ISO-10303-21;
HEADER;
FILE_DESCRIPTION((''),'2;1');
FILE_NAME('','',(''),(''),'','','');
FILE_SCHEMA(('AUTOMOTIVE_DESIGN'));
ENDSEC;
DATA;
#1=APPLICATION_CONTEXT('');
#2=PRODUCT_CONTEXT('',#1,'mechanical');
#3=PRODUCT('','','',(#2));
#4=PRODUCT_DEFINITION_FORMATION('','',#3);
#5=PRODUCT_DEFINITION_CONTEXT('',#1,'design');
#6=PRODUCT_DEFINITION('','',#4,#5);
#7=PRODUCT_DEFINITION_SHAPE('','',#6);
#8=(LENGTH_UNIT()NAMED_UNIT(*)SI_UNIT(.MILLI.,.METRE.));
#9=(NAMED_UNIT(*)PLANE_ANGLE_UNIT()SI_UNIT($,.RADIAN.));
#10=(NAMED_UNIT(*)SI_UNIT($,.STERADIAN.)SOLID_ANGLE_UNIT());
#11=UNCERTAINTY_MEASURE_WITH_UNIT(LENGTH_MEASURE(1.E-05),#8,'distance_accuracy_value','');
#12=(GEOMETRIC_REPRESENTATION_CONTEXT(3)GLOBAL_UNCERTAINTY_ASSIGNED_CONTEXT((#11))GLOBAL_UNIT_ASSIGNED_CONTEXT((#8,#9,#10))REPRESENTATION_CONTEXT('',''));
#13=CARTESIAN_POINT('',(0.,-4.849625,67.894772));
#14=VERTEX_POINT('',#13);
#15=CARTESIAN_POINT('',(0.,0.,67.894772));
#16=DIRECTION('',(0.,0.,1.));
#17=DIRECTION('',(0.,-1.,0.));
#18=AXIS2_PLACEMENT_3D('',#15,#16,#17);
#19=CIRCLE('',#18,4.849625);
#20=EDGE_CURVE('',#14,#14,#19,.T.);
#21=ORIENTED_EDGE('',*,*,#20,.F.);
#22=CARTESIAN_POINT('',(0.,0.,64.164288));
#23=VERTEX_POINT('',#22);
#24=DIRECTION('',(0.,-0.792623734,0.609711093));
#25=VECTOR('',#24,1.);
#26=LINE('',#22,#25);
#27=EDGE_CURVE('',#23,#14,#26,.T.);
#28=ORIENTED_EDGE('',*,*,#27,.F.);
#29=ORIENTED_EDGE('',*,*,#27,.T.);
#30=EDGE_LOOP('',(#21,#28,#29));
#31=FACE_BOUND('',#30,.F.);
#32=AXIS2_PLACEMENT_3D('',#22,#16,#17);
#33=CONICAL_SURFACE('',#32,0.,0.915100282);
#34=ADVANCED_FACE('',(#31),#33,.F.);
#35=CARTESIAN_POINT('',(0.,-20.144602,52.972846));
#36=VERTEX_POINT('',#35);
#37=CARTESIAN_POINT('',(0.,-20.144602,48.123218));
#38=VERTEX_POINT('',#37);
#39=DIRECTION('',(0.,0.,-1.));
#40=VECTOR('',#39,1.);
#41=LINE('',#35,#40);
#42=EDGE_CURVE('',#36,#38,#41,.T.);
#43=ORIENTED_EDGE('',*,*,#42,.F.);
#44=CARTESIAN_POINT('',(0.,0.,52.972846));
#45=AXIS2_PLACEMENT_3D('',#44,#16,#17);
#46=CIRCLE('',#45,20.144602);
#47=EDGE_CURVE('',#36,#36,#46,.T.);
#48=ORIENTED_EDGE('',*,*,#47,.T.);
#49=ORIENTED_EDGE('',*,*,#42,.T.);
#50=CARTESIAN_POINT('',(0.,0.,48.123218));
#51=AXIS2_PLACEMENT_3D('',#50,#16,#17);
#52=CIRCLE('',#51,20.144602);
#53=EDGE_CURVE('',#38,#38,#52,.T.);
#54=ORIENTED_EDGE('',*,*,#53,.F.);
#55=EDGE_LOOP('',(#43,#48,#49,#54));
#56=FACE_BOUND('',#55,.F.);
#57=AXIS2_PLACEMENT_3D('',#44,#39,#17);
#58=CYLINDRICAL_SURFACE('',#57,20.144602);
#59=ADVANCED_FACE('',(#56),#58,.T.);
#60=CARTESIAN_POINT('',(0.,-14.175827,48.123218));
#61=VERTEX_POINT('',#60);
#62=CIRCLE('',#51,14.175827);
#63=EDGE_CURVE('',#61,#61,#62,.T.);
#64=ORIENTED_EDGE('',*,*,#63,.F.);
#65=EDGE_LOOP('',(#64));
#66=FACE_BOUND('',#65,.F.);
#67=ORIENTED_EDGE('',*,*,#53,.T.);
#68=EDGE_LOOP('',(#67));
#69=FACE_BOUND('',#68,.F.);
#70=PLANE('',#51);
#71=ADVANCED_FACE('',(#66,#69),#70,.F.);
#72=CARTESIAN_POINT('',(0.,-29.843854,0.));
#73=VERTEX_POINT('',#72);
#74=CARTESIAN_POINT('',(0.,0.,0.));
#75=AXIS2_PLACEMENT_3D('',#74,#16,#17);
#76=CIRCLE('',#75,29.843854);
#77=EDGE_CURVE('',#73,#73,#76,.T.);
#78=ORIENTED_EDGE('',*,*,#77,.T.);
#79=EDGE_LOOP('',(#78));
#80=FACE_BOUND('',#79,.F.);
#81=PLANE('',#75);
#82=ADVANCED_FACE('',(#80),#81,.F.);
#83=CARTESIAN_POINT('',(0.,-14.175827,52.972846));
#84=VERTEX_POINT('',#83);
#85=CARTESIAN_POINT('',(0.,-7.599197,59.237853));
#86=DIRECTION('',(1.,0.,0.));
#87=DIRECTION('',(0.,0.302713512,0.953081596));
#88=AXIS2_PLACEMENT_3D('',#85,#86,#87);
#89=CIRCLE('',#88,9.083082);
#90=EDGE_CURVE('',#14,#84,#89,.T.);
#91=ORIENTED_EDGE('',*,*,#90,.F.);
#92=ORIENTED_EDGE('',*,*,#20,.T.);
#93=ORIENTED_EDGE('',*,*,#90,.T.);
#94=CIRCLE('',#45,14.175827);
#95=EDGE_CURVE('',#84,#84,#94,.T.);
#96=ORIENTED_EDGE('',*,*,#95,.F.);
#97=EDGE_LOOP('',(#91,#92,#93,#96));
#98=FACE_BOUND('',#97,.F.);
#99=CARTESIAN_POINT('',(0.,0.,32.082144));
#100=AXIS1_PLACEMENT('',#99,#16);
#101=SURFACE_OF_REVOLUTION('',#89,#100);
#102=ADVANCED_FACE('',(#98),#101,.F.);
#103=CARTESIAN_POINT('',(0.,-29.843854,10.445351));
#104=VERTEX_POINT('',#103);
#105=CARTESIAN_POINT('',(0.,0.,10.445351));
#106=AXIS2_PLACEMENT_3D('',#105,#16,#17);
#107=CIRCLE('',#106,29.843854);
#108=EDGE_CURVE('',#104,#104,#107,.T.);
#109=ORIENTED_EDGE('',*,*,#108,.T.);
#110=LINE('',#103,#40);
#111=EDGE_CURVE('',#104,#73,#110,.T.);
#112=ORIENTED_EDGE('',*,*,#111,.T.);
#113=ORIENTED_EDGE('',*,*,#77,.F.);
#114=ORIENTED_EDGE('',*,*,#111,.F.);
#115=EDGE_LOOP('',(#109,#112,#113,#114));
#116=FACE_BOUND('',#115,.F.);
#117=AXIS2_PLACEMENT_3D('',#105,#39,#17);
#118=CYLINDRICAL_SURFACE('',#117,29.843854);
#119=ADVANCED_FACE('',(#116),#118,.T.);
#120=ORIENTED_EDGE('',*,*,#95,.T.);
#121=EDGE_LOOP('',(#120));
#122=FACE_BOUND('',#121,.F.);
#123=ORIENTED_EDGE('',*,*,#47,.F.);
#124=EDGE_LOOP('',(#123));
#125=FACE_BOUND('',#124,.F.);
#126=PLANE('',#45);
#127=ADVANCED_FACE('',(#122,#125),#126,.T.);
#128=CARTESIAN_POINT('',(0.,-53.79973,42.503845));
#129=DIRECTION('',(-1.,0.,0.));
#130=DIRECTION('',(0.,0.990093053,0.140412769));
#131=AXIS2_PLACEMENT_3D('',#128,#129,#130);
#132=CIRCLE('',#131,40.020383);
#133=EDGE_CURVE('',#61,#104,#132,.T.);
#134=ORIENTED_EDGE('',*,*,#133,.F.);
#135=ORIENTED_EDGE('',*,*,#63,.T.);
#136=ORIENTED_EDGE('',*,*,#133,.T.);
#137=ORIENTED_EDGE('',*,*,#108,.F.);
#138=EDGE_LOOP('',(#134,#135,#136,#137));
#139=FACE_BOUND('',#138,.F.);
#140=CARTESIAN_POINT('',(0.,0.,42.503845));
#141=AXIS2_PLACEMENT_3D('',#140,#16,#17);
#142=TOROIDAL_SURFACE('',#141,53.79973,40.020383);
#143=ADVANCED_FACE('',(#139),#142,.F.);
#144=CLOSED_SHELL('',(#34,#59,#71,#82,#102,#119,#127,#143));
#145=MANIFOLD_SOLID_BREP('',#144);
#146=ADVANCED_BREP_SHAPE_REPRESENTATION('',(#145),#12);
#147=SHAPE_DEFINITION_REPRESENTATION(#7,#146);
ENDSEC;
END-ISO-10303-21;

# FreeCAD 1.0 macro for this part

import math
import FreeCAD as App
import Part
import Sketcher

V = App.Vector
Q = App.Units.Quantity

doc = App.newDocument("Part")
body = doc.addObject("PartDesign::Body", "Body")

# Sketch on YZ plane
sketch1 = body.newObject("Sketcher::SketchObject", "Sketch")
sketch1.AttachmentSupport = (doc.getObject("YZ_Plane"), [""])
sketch1.MapMode = "FlatFace"
sketch1.addGeometry(Part.LineSegment(V(-29.8, 0, 0), V(0, 0, 0)), False)
sketch1.addGeometry(Part.LineSegment(V(0, 0, 0), V(0, 64.2, 0)), False)
sketch1.addGeometry(Part.LineSegment(V(0, 64.2, 0), V(-4.8, 67.9, 0)), False)
sketch1.addGeometry(Part.ArcOfCircle(Part.Circle(V(-7.6, 59.2, 0), V(0, 0, 1), 9.1), math.radians(72), math.radians(224)), False)
sketch1.addGeometry(Part.LineSegment(V(-14.2, 53, 0), V(-20.1, 53, 0)), False)
sketch1.addGeometry(Part.LineSegment(V(-20.1, 53, 0), V(-20.1, 48.1, 0)), False)
sketch1.addGeometry(Part.LineSegment(V(-20.1, 48.1, 0), V(-14.2, 48.1, 0)), False)
sketch1.addGeometry(Part.ArcOfCircle(Part.Circle(V(-53.8, 42.5, 0), V(0, 0, 1), 40), math.radians(-53), math.radians(8)), False)
sketch1.addGeometry(Part.LineSegment(V(-29.8, 10.4, 0), V(-29.8, 0, 0)), False)
sketch1.addConstraint(Sketcher.Constraint("Coincident", 0, 2, 1, 1))
sketch1.addConstraint(Sketcher.Constraint("Coincident", 1, 2, 2, 1))
sketch1.addConstraint(Sketcher.Constraint("Coincident", 2, 2, 3, 1))
sketch1.addConstraint(Sketcher.Constraint("Coincident", 3, 2, 4, 1))
sketch1.addConstraint(Sketcher.Constraint("Coincident", 4, 2, 5, 1))
sketch1.addConstraint(Sketcher.Constraint("Coincident", 5, 2, 6, 1))
sketch1.addConstraint(Sketcher.Constraint("Coincident", 6, 2, 7, 2))
sketch1.addConstraint(Sketcher.Constraint("Coincident", 7, 1, 8, 1))
sketch1.addConstraint(Sketcher.Constraint("Coincident", 8, 2, 0, 1))
sketch1.addConstraint(Sketcher.Constraint("Horizontal", 0))
sketch1.addConstraint(Sketcher.Constraint("Vertical", 1))
sketch1.addConstraint(Sketcher.Constraint("Horizontal", 4))
sketch1.addConstraint(Sketcher.Constraint("Vertical", 5))
sketch1.addConstraint(Sketcher.Constraint("Horizontal", 6))
sketch1.addConstraint(Sketcher.Constraint("Vertical", 8))
sketch1.addConstraint(Sketcher.Constraint("Coincident", 0, 2, -1, 1))
sketch1.addConstraint(Sketcher.Constraint("Vertical", 3, 2, 6, 2))
sketch1.addConstraint(Sketcher.Constraint("Radius", 3, Q("9.083082 mm")))
sketch1.addConstraint(Sketcher.Constraint("Radius", 7, Q("40.020383 mm")))
sketch1.addConstraint(Sketcher.Constraint("DistanceY", 7, 3, 3, 2, Q("10.469001 mm")))
sketch1.addConstraint(Sketcher.Constraint("DistanceY", 1, 1, 1, 2, Q("64.164288 mm")))
sketch1.addConstraint(Sketcher.Constraint("DistanceY", 8, 2, 8, 1, Q("10.445351 mm")))
sketch1.addConstraint(Sketcher.Constraint("DistanceX", 4, 2, -1, 1, Q("20.144602 mm")))
sketch1.addConstraint(Sketcher.Constraint("DistanceX", 0, 1, 0, 2, Q("29.843854 mm")))
sketch1.addConstraint(Sketcher.Constraint("DistanceX", 4, 2, 4, 1, Q("5.968775 mm")))
sketch1.addConstraint(Sketcher.Constraint("DistanceY", 5, 2, 5, 1, Q("4.849628 mm")))
sketch1.addConstraint(Sketcher.Constraint("DistanceY", 7, 3, 3, 3, Q("16.734008 mm")))
sketch1.addConstraint(Sketcher.Constraint("DistanceX", 3, 3, 2, 2, Q("2.749572 mm")))
revolution = body.newObject("PartDesign::Revolution", "Revolution")
revolution.Profile = sketch1
revolution.ReferenceAxis = (sketch1, ["V_Axis"])
revolution.Angle = 360

doc.recompute()
